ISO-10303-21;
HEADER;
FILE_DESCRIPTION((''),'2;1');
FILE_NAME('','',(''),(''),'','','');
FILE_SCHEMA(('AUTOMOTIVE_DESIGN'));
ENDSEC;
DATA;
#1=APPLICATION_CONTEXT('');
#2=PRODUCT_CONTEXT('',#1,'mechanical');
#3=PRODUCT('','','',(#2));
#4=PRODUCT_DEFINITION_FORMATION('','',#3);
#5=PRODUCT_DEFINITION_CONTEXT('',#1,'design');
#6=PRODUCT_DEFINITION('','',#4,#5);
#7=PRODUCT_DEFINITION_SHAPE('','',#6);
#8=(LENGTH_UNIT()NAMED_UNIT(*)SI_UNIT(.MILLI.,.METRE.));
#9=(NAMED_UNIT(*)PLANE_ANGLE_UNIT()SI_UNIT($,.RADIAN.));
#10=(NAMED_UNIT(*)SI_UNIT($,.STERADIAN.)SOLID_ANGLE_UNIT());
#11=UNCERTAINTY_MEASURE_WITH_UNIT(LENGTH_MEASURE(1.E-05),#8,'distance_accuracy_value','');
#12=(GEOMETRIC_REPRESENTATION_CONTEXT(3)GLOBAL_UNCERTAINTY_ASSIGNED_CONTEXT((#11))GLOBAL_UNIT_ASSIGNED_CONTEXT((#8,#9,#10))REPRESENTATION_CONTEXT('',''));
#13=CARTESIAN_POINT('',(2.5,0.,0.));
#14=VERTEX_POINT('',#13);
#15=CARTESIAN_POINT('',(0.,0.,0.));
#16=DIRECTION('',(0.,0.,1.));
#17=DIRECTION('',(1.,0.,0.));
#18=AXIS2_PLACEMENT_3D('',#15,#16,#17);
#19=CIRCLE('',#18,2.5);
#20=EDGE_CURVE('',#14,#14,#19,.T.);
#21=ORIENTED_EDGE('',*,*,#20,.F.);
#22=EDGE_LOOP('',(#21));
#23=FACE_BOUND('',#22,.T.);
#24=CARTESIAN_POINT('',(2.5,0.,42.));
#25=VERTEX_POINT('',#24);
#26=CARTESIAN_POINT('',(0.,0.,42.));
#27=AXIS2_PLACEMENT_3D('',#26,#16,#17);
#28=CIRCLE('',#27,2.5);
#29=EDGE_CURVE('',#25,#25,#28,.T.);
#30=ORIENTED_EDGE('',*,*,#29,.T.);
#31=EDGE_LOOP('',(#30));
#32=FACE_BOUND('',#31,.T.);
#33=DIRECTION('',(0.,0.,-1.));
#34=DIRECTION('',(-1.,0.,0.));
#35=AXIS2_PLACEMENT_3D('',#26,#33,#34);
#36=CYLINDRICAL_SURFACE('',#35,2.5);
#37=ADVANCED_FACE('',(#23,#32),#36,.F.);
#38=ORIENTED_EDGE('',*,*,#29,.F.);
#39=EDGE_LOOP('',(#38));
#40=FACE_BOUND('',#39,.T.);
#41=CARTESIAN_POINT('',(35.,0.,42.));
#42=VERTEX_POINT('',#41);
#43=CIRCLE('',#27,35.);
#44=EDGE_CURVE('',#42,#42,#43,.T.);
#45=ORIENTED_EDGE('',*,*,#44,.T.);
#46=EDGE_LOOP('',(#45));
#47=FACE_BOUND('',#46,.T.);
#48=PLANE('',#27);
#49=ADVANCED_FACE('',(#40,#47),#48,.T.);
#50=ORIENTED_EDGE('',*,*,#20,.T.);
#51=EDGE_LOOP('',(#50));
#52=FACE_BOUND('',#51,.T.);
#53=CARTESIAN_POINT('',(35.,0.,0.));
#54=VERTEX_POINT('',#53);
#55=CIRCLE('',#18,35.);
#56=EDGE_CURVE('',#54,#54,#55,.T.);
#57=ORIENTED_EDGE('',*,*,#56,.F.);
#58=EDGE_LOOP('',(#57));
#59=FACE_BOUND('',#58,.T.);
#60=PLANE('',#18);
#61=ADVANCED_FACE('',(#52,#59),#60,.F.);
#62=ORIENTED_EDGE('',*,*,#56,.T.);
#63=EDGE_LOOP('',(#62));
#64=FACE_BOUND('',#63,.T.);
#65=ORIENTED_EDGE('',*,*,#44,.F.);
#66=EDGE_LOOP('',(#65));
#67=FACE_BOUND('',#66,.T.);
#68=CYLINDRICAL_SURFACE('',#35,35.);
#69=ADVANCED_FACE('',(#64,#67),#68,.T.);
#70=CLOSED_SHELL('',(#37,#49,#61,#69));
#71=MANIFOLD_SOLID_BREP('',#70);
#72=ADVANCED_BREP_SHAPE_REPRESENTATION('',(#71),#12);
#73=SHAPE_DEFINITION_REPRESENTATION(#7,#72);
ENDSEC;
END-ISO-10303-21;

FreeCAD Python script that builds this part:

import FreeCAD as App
import Part
import Sketcher
from FreeCAD import Vector

doc = App.newDocument("Part")
body = doc.addObject("PartDesign::Body", "Body")

sketch1 = doc.addObject("Sketcher::SketchObject", "Sketch")
body.addObject(sketch1)
sketch1.AttachmentSupport = (doc.XY_Plane, [""])
sketch1.MapMode = "FlatFace"
sketch1.addGeometry(Part.Circle(Vector(0, 0, 0), Vector(0, 0, 1), 35), False)
sketch1.addGeometry(Part.Circle(Vector(0, 0, 0), Vector(0, 0, 1), 2.5), False)
sketch1.addConstraint(Sketcher.Constraint("Coincident", 0, 3, -1, 1))
sketch1.addConstraint(Sketcher.Constraint("Coincident", 1, 3, -1, 1))
sketch1.addConstraint(Sketcher.Constraint("Diameter", 0, 70.0))
sketch1.addConstraint(Sketcher.Constraint("Diameter", 1, 5.0))
pad1 = doc.addObject("PartDesign::Pad", "Pad")
body.addObject(pad1)
pad1.Profile = sketch1
pad1.Length = 42

doc.recompute()
